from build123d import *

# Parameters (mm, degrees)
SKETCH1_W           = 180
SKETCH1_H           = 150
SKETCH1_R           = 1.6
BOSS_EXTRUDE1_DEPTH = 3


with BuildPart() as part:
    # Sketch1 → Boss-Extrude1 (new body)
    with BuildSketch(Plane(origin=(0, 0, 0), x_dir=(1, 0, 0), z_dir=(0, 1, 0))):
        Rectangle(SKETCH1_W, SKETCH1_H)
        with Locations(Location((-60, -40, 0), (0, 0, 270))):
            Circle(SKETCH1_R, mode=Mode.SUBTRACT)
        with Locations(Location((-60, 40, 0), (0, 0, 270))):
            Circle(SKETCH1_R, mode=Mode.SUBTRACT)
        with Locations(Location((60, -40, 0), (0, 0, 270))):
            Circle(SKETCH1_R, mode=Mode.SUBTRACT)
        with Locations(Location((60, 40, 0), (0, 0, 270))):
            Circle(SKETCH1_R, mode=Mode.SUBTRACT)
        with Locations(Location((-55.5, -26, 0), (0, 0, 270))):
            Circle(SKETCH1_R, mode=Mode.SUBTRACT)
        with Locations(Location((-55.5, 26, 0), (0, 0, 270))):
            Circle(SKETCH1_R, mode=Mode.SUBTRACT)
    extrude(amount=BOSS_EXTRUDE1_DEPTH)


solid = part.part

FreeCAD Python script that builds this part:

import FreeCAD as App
import Part
import Sketcher

V = App.Vector
Q = App.Units.Quantity


def add_polygon(sketch, points):
    """Adds a closed chain of lines whose ends are joined by coincident constraints."""
    first, n = sketch.GeometryCount, len(points)
    for a, b in zip(points, points[1:] + points[:1]):
        sketch.addGeometry(Part.LineSegment(App.Vector(*a, 0), App.Vector(*b, 0)), False)
    for i in range(n):
        sketch.addConstraint(Sketcher.Constraint("Coincident", first + i, 2, first + (i + 1) % n, 1))

doc = App.newDocument("Part")
params = doc.addObject("Spreadsheet::Sheet", "Params")
for row, (alias, value) in enumerate([
    ("sketch1_diameter", "3.2 mm"),
    ("sketch1_width", "180 mm"),
    ("sketch1_height", "150 mm"),
    ("pad1_length", "3 mm"),
], start=1):
    params.set(f"A{row}", alias)
    params.set(f"B{row}", "=" + value)
    params.setAlias(f"B{row}", alias)

body = doc.addObject("PartDesign::Body", "Body")

# Sketch on XZ plane
sketch1 = doc.addObject("Sketcher::SketchObject", "Sketch")
body.addObject(sketch1)
sketch1.AttachmentSupport = (doc.XZ_Plane, [""])
sketch1.MapMode = "FlatFace"
add_polygon(sketch1, [(-90, -75), (-90, 75), (90, 75), (90, -75)])  # lines 0-3
sketch1.addGeometry(Part.Circle(V(-60, 40, 0), V(0, 0, 1), 1.6), False)  # 4
sketch1.addGeometry(Part.Circle(V(-55.5, 26, 0), V(0, 0, 1), 1.6), False)  # 5
sketch1.addGeometry(Part.Circle(V(60, 40, 0), V(0, 0, 1), 1.6), False)  # 6
sketch1.addGeometry(Part.Circle(V(-55.5, -26, 0), V(0, 0, 1), 1.6), False)  # 7
sketch1.addGeometry(Part.Circle(V(-60, -40, 0), V(0, 0, 1), 1.6), False)  # 8
sketch1.addGeometry(Part.Circle(V(60, -40, 0), V(0, 0, 1), 1.6), False)  # 9
sketch1.addConstraint(Sketcher.Constraint("Vertical", 0))
sketch1.addConstraint(Sketcher.Constraint("Horizontal", 1))
sketch1.addConstraint(Sketcher.Constraint("Vertical", 2))
sketch1.addConstraint(Sketcher.Constraint("Horizontal", 3))
sketch1.addConstraint(Sketcher.Constraint("Equal", 4, 5))
sketch1.addConstraint(Sketcher.Constraint("Equal", 5, 6))
sketch1.addConstraint(Sketcher.Constraint("Equal", 6, 7))
sketch1.addConstraint(Sketcher.Constraint("Equal", 7, 8))
sketch1.addConstraint(Sketcher.Constraint("Equal", 8, 9))
sketch1.addConstraint(Sketcher.Constraint("Symmetric", 6, 3, 8, 3, -1, 1))
sketch1.addConstraint(Sketcher.Constraint("Symmetric", 4, 3, 9, 3, -1, 1))
sketch1.addConstraint(Sketcher.Constraint("Symmetric", 0, 2, 2, 2, -1, 1))
sketch1.addConstraint(Sketcher.Constraint("Symmetric", 4, 3, 6, 3, -2))
sketch1.addConstraint(Sketcher.Constraint("Symmetric", 5, 3, 7, 3, -1))
sketch1.addConstraint(Sketcher.Constraint("Diameter", 4, Q("3.2 mm")))
sketch1.addConstraint(Sketcher.Constraint("DistanceX", 1, 1, 1, 2, Q("180 mm")))
sketch1.addConstraint(Sketcher.Constraint("DistanceY", 0, 1, 0, 2, Q("150 mm")))
sketch1.addConstraint(Sketcher.Constraint("DistanceX", 4, 3, -1, 1, Q("60 mm")))
sketch1.addConstraint(Sketcher.Constraint("DistanceY", -1, 1, 4, 3, Q("40 mm")))
sketch1.addConstraint(Sketcher.Constraint("DistanceY", -1, 1, 5, 3, Q("26 mm")))
sketch1.addConstraint(Sketcher.Constraint("DistanceX", 5, 3, -1, 1, Q("55.5 mm")))
sketch1.setExpression("Constraints[18]", "Params.sketch1_diameter")
sketch1.setExpression("Constraints[19]", "Params.sketch1_width")
sketch1.setExpression("Constraints[20]", "Params.sketch1_height")
pad1 = doc.addObject("PartDesign::Pad", "Pad")
body.addObject(pad1)
pad1.Profile = sketch1
pad1.setExpression("Length", "Params.pad1_length")
pad1.Reversed = True

doc.recompute()
